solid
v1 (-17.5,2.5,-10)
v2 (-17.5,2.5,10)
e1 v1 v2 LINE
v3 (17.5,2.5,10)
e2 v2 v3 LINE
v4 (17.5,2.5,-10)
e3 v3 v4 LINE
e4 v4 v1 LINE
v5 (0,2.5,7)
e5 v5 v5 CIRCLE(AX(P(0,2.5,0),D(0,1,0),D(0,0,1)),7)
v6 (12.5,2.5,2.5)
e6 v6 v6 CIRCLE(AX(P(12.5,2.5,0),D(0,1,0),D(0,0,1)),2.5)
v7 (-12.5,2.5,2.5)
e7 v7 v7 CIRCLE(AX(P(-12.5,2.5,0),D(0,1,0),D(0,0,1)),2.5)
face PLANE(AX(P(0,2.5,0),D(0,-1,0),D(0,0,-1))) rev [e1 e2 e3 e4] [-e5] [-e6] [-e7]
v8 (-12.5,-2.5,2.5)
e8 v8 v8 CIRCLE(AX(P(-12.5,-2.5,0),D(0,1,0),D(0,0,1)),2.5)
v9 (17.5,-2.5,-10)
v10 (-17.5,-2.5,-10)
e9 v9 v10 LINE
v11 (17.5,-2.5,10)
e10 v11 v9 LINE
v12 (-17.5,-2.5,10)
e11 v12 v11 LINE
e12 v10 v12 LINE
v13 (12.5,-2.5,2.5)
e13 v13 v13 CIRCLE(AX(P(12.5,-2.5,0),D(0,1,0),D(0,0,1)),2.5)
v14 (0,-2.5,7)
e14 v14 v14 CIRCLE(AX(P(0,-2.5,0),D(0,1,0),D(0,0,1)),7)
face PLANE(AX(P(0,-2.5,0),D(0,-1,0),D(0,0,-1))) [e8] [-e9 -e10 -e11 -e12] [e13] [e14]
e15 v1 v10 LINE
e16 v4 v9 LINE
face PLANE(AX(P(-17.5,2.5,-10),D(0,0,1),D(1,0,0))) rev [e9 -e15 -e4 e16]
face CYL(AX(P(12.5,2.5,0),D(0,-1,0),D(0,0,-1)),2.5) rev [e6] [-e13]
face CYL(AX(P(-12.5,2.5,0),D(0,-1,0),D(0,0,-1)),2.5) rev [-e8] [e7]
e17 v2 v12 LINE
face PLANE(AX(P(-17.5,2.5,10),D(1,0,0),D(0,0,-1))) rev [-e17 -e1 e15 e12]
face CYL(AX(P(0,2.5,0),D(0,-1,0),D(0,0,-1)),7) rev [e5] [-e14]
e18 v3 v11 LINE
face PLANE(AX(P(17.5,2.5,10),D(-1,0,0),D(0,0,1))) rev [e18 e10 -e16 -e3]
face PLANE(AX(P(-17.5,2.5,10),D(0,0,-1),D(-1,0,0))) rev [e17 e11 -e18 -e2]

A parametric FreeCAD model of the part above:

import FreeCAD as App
import Part
import Sketcher

V = App.Vector
Q = App.Units.Quantity


def add_polygon(sketch, points):
    """Adds a closed chain of lines whose ends are joined by coincident constraints."""
    first, n = sketch.GeometryCount, len(points)
    for a, b in zip(points, points[1:] + points[:1]):
        sketch.addGeometry(Part.LineSegment(App.Vector(*a, 0), App.Vector(*b, 0)), False)
    for i in range(n):
        sketch.addConstraint(Sketcher.Constraint("Coincident", first + i, 2, first + (i + 1) % n, 1))

doc = App.newDocument("Part")
body = doc.addObject("PartDesign::Body", "Body")

# Sketch on XZ plane
sketch1 = body.newObject("Sketcher::SketchObject", "Sketch")
sketch1.AttachmentSupport = (doc.getObject("XZ_Plane"), [""])
sketch1.MapMode = "FlatFace"
add_polygon(sketch1, [(-17.5, -10), (-17.5, 10), (17.5, 10), (17.5, -10)])  # lines 0-3
sketch1.addGeometry(Part.Circle(V(-12.5, 0, 0), V(0, 0, 1), 2.5), False)  # 4
sketch1.addGeometry(Part.Circle(V(0, 0, 0), V(0, 0, 1), 7), False)  # 5
sketch1.addGeometry(Part.Circle(V(12.5, 0, 0), V(0, 0, 1), 2.5), False)  # 6
sketch1.addConstraint([
    Sketcher.Constraint("Vertical", 0),
    Sketcher.Constraint("Horizontal", 1),
    Sketcher.Constraint("Vertical", 2),
    Sketcher.Constraint("Horizontal", 3),
    Sketcher.Constraint("Coincident", 5, 3, -1, 1),
    Sketcher.Constraint("Equal", 4, 6),
    Sketcher.Constraint("Symmetric", 4, 3, 6, 3, -1, 1),
    Sketcher.Constraint("Symmetric", 0, 2, 2, 2, -1, 1),
    Sketcher.Constraint("PointOnObject", 4, 3, -1),
    Sketcher.Constraint("Diameter", 4, Q("5 mm")),
    Sketcher.Constraint("Diameter", 5, Q("14 mm")),
    Sketcher.Constraint("DistanceX", 1, 1, 1, 2, Q("35 mm")),
    Sketcher.Constraint("DistanceY", 0, 1, 0, 2, Q("20 mm")),
    Sketcher.Constraint("DistanceX", 4, 3, 6, 3, Q("25 mm")),
])
pad1 = body.newObject("PartDesign::Pad", "Pad")
pad1.Profile = sketch1
pad1.Length = 5
pad1.Midplane = True

doc.recompute()
